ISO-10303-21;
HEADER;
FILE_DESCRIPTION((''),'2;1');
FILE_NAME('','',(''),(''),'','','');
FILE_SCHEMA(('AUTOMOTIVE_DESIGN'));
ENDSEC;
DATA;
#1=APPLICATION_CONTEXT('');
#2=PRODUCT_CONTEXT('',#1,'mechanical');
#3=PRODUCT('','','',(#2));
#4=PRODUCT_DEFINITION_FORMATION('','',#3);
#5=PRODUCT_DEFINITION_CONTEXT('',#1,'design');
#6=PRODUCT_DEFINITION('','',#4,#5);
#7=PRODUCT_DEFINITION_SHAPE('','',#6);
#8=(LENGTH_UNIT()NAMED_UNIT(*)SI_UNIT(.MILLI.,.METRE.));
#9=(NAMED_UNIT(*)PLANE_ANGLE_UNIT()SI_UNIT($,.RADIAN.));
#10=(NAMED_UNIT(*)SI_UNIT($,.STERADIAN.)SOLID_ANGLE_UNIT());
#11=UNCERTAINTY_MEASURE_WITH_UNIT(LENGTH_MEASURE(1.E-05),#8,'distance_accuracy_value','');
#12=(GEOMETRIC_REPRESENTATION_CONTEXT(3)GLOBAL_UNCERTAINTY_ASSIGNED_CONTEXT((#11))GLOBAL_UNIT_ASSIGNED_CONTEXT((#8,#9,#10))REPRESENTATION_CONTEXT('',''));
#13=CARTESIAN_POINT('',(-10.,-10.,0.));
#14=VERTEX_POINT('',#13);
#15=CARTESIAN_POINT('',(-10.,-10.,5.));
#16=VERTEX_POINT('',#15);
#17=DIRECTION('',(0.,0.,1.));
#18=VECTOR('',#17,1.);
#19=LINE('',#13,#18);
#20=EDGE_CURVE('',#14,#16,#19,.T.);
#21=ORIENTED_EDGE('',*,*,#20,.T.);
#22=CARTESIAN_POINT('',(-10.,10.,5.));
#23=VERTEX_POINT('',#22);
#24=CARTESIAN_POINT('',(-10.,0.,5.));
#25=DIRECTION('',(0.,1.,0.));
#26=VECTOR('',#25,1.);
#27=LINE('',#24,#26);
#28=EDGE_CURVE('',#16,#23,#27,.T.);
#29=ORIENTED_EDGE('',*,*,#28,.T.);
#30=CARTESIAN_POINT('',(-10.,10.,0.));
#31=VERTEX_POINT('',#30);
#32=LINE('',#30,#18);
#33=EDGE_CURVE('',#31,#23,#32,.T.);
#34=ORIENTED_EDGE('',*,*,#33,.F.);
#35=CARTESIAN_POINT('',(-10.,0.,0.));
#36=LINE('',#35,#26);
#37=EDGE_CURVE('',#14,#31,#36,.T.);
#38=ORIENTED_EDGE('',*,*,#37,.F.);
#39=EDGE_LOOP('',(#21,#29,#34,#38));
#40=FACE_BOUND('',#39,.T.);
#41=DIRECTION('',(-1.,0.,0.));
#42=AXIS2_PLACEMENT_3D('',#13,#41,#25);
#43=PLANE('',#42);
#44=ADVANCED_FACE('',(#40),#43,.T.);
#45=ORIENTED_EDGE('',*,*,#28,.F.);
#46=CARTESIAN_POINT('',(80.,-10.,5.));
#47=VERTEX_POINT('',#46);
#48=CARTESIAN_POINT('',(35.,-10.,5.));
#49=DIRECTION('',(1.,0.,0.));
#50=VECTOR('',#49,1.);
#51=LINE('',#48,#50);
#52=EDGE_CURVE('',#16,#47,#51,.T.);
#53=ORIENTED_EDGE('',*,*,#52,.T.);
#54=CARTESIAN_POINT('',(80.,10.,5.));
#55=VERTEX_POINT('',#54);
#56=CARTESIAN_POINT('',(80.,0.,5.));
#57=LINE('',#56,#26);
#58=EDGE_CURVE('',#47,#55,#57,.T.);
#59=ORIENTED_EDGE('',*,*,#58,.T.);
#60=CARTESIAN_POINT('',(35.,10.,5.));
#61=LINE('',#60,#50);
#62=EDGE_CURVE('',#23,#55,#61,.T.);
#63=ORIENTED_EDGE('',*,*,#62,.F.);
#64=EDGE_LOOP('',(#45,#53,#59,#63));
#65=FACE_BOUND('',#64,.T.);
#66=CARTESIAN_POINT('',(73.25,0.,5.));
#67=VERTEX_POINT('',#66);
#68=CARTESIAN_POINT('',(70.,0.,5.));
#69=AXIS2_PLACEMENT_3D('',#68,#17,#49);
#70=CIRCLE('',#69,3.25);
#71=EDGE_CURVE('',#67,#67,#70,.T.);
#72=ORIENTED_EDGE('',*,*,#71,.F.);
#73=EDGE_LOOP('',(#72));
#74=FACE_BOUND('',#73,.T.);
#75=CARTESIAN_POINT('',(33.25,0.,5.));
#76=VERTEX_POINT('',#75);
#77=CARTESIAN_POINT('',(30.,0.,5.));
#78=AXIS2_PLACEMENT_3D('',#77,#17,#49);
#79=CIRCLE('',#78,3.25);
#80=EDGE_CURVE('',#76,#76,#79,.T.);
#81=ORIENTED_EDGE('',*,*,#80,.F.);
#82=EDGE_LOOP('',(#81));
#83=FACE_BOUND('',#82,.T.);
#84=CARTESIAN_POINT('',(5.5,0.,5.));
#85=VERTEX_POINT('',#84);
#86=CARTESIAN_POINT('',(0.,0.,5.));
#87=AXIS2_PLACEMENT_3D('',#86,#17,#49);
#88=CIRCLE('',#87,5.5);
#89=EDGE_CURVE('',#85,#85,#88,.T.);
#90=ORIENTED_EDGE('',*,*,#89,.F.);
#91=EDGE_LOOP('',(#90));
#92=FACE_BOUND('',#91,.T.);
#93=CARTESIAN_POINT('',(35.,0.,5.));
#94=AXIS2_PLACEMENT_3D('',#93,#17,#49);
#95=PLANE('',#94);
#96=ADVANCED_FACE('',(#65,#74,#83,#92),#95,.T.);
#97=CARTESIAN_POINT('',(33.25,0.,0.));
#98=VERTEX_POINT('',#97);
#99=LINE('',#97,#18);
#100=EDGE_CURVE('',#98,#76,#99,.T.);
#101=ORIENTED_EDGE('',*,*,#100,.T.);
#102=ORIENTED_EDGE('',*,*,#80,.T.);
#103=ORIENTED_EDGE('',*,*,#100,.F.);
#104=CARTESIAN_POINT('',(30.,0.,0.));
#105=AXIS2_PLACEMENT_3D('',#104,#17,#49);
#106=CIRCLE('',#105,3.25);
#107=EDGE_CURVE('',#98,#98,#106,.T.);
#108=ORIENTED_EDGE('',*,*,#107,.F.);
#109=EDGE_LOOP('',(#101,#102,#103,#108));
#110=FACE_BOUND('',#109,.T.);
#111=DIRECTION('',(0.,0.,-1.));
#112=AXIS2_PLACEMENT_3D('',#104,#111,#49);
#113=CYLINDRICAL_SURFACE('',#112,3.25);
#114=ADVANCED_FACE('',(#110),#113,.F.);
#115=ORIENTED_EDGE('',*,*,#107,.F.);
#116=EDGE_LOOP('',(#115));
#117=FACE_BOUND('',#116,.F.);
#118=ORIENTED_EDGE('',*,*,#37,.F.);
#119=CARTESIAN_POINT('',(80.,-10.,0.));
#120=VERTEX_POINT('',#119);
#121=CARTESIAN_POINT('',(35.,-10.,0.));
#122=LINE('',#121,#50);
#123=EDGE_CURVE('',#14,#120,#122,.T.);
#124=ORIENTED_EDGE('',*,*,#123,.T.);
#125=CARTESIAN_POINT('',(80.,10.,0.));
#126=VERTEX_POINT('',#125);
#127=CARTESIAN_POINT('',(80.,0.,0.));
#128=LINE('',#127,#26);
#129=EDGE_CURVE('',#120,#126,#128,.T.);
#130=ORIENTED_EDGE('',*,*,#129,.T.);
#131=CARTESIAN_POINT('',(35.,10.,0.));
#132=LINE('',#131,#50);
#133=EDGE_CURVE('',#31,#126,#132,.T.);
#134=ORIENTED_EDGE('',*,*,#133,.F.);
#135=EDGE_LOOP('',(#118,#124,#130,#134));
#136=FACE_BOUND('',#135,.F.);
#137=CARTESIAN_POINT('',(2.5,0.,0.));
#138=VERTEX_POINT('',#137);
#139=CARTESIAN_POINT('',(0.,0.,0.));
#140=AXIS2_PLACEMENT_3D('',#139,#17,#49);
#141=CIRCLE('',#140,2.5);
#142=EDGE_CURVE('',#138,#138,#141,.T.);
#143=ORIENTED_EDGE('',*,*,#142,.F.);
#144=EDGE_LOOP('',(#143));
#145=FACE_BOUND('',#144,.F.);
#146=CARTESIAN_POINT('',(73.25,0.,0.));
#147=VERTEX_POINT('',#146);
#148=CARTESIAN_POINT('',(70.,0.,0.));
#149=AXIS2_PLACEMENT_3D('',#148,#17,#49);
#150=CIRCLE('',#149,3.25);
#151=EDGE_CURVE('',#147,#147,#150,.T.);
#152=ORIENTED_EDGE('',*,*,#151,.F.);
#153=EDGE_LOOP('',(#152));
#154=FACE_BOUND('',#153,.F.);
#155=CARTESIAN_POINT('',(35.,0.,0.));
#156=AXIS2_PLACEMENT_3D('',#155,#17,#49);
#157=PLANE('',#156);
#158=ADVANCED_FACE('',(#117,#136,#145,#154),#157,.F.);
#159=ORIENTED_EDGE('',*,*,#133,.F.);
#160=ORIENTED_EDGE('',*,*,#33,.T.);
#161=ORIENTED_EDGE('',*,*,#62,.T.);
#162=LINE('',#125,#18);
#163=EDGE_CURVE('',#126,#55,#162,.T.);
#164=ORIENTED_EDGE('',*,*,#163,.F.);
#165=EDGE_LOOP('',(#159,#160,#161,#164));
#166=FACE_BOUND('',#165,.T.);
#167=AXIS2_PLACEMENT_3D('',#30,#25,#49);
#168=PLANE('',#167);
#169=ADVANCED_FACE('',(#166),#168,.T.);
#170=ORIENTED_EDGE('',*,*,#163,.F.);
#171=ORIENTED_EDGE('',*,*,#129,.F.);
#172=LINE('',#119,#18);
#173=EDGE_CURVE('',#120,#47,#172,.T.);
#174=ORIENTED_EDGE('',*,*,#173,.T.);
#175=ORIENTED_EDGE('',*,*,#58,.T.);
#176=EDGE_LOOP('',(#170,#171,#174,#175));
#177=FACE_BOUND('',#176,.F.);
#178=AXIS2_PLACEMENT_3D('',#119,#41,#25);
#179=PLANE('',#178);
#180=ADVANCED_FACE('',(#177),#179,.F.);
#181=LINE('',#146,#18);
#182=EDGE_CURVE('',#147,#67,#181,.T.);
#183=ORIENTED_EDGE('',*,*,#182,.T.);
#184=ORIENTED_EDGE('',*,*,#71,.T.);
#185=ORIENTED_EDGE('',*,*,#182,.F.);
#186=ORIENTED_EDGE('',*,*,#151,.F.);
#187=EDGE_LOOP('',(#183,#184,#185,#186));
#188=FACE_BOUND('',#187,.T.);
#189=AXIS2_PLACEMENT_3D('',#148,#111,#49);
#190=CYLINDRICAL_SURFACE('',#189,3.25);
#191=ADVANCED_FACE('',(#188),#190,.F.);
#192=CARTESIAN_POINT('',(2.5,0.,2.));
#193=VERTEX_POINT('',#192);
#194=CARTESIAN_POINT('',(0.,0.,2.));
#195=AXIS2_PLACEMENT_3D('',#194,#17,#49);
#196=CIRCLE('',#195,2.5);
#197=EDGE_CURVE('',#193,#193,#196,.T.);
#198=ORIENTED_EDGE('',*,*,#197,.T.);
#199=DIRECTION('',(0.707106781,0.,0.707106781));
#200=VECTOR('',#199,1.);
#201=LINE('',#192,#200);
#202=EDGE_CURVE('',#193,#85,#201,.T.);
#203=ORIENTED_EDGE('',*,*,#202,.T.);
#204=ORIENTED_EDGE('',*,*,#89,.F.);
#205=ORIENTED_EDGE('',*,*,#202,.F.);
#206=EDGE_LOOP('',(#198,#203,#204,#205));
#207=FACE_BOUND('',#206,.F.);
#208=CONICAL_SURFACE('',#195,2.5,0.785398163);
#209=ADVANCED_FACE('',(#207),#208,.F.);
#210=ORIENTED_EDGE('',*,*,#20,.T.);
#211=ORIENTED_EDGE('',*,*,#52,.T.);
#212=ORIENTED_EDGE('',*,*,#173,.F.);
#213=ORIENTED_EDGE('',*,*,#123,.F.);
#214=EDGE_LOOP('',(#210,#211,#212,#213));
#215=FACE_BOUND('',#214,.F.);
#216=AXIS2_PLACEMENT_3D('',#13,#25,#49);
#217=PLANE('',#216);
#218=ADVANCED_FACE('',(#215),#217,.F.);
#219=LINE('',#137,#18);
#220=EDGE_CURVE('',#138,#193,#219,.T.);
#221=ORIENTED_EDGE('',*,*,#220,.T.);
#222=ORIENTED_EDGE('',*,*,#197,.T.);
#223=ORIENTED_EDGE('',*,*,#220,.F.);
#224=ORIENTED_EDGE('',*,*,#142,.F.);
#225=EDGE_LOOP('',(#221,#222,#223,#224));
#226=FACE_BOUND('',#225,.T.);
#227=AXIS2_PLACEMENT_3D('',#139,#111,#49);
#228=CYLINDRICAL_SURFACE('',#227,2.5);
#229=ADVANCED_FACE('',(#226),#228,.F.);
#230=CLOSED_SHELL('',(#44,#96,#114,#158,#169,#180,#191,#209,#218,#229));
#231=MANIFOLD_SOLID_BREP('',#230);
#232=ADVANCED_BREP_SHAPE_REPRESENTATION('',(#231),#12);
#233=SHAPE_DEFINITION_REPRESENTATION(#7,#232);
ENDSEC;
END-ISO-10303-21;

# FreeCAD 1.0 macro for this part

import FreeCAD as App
import Part
import Sketcher
from FreeCAD import Vector
Q = App.Units.Quantity


def edges_at(feature, points):
    """Names of the edges that pass closest to the given points."""
    edges = feature.Shape.Edges
    near = lambda p: min(range(len(edges)), key=lambda i: edges[i].distToShape(Part.Vertex(*p))[0])
    return sorted({f"Edge{near(p) + 1}" for p in points})

doc = App.newDocument("Part")
params = doc.addObject("Spreadsheet::Sheet", "Params")
for row, (alias, value) in enumerate([
    ("sketch1_diameter", "5 mm"),
    ("sketch1_diameter2", "6.5 mm"),
    ("sketch1_width", "90 mm"),
    ("sketch1_height", "20 mm"),
    ("pad1_length", "5 mm"),
    ("chamfer_size", "3 mm"),
], start=1):
    params.set(f"A{row}", alias)
    params.set(f"B{row}", "=" + value)
    params.setAlias(f"B{row}", alias)

body = doc.addObject("PartDesign::Body", "Body")

sketch1 = body.newObject("Sketcher::SketchObject", "Sketch")
sketch1.AttachmentSupport = (doc.getObject("XY_Plane"), [""])
sketch1.MapMode = "FlatFace"
sketch1.addGeometry([
    Part.LineSegment(Vector(-10, 10, 0), Vector(-10, -10, 0)),
    Part.LineSegment(Vector(-10, -10, 0), Vector(80, -10, 0)),
    Part.LineSegment(Vector(80, -10, 0), Vector(80, 10, 0)),
    Part.LineSegment(Vector(80, 10, 0), Vector(-10, 10, 0)),
    Part.Circle(Vector(0, 0, 0), Vector(0, 0, 1), 2.5),
    Part.Circle(Vector(30, 0, 0), Vector(0, 0, 1), 3.2),
    Part.Circle(Vector(70, 0, 0), Vector(0, 0, 1), 3.2),
], False)
sketch1.addConstraint([
    Sketcher.Constraint("Coincident", 0, 2, 1, 1),
    Sketcher.Constraint("Coincident", 1, 2, 2, 1),
    Sketcher.Constraint("Coincident", 2, 2, 3, 1),
    Sketcher.Constraint("Coincident", 3, 2, 0, 1),
    Sketcher.Constraint("Vertical", 0),
    Sketcher.Constraint("Horizontal", 1),
    Sketcher.Constraint("Vertical", 2),
    Sketcher.Constraint("Horizontal", 3),
    Sketcher.Constraint("Coincident", 4, 3, -1, 1),
    Sketcher.Constraint("Equal", 5, 6),
    Sketcher.Constraint("PointOnObject", 5, 3, -1),
    Sketcher.Constraint("PointOnObject", 6, 3, -1),
    Sketcher.Constraint("Diameter", 4, Q("5 mm")),
    Sketcher.Constraint("Diameter", 5, Q("6.5 mm")),
    Sketcher.Constraint("DistanceX", 1, 1, 1, 2, Q("90 mm")),
    Sketcher.Constraint("DistanceY", 0, 2, 0, 1, Q("20 mm")),
    Sketcher.Constraint("DistanceX", -1, 1, 5, 3, Q("30 mm")),
    Sketcher.Constraint("DistanceX", -1, 1, 6, 3, Q("70 mm")),
    Sketcher.Constraint("DistanceX", 0, 2, -1, 1, Q("10 mm")),
    Sketcher.Constraint("DistanceY", 0, 2, -1, 1, Q("10 mm")),
])
sketch1.setExpression("Constraints[12]", "Params.sketch1_diameter")
sketch1.setExpression("Constraints[13]", "Params.sketch1_diameter2")
sketch1.setExpression("Constraints[14]", "Params.sketch1_width")
sketch1.setExpression("Constraints[15]", "Params.sketch1_height")
pad1 = body.newObject("PartDesign::Pad", "Pad")
pad1.Profile = sketch1
pad1.setExpression("Length", "Params.pad1_length")
doc.recompute()

chamfer = body.newObject("PartDesign::Chamfer", "Chamfer")
chamfer.Base = (pad1, edges_at(pad1, [(-2.5, 0, 5)]))
chamfer.setExpression("Size", "Params.chamfer_size")

doc.recompute()
